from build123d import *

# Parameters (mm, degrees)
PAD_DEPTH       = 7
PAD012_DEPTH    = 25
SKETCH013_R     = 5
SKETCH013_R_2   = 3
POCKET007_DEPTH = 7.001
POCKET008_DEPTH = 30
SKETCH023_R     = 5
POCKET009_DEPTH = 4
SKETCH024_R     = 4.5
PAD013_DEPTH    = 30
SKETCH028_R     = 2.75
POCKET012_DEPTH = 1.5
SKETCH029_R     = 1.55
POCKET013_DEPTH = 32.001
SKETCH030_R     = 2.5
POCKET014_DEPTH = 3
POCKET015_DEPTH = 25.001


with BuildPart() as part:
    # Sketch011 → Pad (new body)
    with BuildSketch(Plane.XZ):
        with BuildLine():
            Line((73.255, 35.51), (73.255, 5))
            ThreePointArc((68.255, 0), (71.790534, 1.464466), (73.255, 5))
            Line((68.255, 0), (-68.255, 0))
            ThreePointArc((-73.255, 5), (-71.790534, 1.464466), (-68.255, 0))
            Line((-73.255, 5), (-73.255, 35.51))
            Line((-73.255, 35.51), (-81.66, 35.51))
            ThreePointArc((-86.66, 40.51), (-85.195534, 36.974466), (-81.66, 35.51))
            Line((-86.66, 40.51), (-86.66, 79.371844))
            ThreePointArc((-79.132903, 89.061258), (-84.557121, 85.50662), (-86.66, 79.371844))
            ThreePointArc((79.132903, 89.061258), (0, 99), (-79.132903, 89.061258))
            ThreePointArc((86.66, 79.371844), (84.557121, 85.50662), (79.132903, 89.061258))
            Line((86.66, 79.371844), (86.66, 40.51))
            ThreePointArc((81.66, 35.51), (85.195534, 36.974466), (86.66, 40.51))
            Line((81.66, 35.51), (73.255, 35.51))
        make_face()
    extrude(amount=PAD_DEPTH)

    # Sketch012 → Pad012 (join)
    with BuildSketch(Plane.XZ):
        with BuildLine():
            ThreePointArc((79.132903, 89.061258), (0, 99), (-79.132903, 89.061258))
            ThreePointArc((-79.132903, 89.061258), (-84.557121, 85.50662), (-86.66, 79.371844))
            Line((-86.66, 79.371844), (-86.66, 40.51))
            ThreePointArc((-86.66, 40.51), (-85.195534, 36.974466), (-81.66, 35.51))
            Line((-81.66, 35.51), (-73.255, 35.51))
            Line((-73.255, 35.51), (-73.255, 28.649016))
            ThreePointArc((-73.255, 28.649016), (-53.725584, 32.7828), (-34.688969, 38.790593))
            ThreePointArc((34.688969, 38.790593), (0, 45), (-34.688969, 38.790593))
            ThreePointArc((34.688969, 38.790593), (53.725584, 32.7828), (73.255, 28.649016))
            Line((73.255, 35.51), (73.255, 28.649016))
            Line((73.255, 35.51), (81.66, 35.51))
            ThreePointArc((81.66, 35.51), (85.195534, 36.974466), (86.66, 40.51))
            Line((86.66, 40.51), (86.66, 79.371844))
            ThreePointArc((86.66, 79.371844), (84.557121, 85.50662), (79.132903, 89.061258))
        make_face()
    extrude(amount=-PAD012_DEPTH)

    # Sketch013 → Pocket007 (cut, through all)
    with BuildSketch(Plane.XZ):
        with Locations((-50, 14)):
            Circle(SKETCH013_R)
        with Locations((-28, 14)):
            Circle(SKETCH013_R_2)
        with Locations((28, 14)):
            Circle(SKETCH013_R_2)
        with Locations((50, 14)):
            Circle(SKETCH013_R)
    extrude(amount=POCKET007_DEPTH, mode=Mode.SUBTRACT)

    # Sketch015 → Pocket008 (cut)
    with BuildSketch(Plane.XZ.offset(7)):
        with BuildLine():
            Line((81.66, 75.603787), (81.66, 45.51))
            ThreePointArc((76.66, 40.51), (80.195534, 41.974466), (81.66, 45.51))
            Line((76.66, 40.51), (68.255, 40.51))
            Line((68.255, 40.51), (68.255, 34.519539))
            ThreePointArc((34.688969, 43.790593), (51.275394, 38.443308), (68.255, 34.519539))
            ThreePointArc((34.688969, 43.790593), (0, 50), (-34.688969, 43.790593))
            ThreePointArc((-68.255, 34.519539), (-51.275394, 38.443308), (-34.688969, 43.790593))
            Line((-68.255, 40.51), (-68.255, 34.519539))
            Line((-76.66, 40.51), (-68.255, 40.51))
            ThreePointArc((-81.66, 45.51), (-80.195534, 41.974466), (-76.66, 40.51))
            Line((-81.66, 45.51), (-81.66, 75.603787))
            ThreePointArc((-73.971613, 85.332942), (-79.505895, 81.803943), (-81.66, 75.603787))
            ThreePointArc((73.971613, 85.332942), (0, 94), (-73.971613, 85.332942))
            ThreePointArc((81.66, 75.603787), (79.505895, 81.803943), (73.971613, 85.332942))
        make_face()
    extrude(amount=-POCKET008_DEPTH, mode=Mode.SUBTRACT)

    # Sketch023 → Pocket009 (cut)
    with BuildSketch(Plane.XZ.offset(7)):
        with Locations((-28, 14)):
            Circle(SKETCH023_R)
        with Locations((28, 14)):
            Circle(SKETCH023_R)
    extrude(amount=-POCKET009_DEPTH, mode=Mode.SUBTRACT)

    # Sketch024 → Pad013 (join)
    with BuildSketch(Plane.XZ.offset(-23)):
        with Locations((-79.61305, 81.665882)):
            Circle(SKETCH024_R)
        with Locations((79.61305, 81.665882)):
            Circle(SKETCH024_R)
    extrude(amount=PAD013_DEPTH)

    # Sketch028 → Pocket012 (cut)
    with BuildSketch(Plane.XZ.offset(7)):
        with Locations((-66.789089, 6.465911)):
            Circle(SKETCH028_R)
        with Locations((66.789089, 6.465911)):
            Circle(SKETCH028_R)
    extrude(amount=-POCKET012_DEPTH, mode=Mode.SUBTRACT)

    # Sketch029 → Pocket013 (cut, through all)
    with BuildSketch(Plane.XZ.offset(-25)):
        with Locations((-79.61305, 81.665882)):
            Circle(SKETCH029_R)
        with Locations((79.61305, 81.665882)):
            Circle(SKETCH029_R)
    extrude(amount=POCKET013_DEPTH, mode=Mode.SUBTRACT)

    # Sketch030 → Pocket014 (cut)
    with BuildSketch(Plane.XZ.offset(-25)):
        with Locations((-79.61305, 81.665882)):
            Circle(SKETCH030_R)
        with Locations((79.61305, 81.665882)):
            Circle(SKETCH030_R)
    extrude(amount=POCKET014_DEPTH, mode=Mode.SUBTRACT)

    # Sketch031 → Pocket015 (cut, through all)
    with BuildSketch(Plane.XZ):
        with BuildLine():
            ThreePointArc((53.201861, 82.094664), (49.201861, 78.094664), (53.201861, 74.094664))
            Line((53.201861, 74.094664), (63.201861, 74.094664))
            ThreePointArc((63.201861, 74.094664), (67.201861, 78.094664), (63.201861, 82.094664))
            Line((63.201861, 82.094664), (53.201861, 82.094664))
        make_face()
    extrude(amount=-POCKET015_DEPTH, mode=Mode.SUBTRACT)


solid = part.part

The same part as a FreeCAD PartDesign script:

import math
import FreeCAD as App
import Part
import Sketcher
from FreeCAD import Vector
Q = App.Units.Quantity

doc = App.newDocument("Part")
body = doc.addObject("PartDesign::Body", "Body")

# Sketch on XZ plane
sketch1 = body.newObject("Sketcher::SketchObject", "Sketch")
sketch1.AttachmentSupport = (doc.getObject("XZ_Plane"), [""])
sketch1.MapMode = "FlatFace"
sketch1.addGeometry([
    Part.LineSegment(Vector(73.255, 5, 0), Vector(73.255, 35.51, 0)),  # 0
    Part.LineSegment(Vector(73.255, 35.51, 0), Vector(81.66, 35.51, 0)),  # 1
    Part.ArcOfCircle(Part.Circle(Vector(81.66, 40.51, 0), Vector(0, 0, 1), 5), math.radians(-90.000004), math.radians(0.000004)),  # 2
    Part.LineSegment(Vector(86.66, 40.51, 0), Vector(86.66, 79.371844, 0)),  # 3
    Part.ArcOfCircle(Part.Circle(Vector(76.66, 79.371844, 0), Vector(0, 0, 1), 10), math.radians(0.000001), math.radians(75.682777)),  # 4
    Part.ArcOfCircle(Part.Circle(Vector(0, -221.000003, 0), Vector(0, 0, 1), 320.000003), math.radians(75.682775), math.radians(104.317225)),  # 5
    Part.ArcOfCircle(Part.Circle(Vector(-76.66, 79.371844, 0), Vector(0, 0, 1), 10), math.radians(104.317223), math.radians(179.999999)),  # 6
    Part.LineSegment(Vector(-86.66, 79.371844, 0), Vector(-86.66, 40.51, 0)),  # 7
    Part.ArcOfCircle(Part.Circle(Vector(-81.66, 40.51, 0), Vector(0, 0, 1), 5), math.radians(179.999996), math.radians(270.000004)),  # 8
    Part.LineSegment(Vector(-81.66, 35.51, 0), Vector(-73.255, 35.51, 0)),  # 9
    Part.LineSegment(Vector(-73.255, 35.51, 0), Vector(-73.255, 5, 0)),  # 10
    Part.ArcOfCircle(Part.Circle(Vector(-68.255, 5, 0), Vector(0, 0, 1), 5), math.radians(179.999996), math.radians(270.000004)),  # 11
    Part.LineSegment(Vector(-68.255, 0, 0), Vector(68.255, 0, 0)),  # 12
    Part.ArcOfCircle(Part.Circle(Vector(68.255, 5, 0), Vector(0, 0, 1), 5), math.radians(-90.000004), math.radians(0.000004)),  # 13
], False)
sketch1.addConstraint([
    Sketcher.Constraint("Coincident", 0, 2, 1, 1),
    Sketcher.Constraint("Tangent", 1, 2, 2, 1),
    Sketcher.Constraint("Tangent", 2, 2, 3, 1),
    Sketcher.Constraint("Tangent", 3, 2, 4, 1),
    Sketcher.Constraint("Tangent", 4, 2, 5, 1),
    Sketcher.Constraint("Tangent", 5, 2, 6, 1),
    Sketcher.Constraint("Tangent", 6, 2, 7, 1),
    Sketcher.Constraint("Tangent", 7, 2, 8, 1),
    Sketcher.Constraint("Tangent", 8, 2, 9, 1),
    Sketcher.Constraint("Coincident", 9, 2, 10, 1),
    Sketcher.Constraint("Tangent", 10, 2, 11, 1),
    Sketcher.Constraint("Tangent", 11, 2, 12, 1),
    Sketcher.Constraint("Tangent", 12, 2, 13, 1),
    Sketcher.Constraint("Tangent", 13, 2, 0, 1),
    Sketcher.Constraint("Vertical", 0),
    Sketcher.Constraint("Horizontal", 1),
    Sketcher.Constraint("Vertical", 3),
    Sketcher.Constraint("Vertical", 7),
    Sketcher.Constraint("Horizontal", 9),
    Sketcher.Constraint("Vertical", 10),
    Sketcher.Constraint("Horizontal", 12),
    Sketcher.Constraint("Equal", 4, 6),
    Sketcher.Constraint("Equal", 2, 8),
    Sketcher.Constraint("Equal", 8, 11),
    Sketcher.Constraint("Equal", 11, 13),
    Sketcher.Constraint("Symmetric", 11, 2, 12, 2, -1, 1),
    Sketcher.Constraint("Symmetric", 4, 3, 6, 3, -2),
    Sketcher.Constraint("Horizontal", 2, 3, 8, 3),
    Sketcher.Constraint("Radius", 2, Q("5 mm")),
    Sketcher.Constraint("Radius", 4, Q("10 mm")),
    Sketcher.Constraint("DistanceX", 12, 1, 12, 2, Q("136.51 mm")),
    Sketcher.Constraint("DistanceY", 0, 1, 0, 2, Q("30.51 mm")),
    Sketcher.Constraint("DistanceX", 1, 1, 1, 2, Q("8.405 mm")),
    Sketcher.Constraint("Radius", 5, Q("320.000003 mm")),
    Sketcher.Constraint("DistanceY", 3, 1, 3, 2, Q("38.861844 mm")),
])
pad1 = body.newObject("PartDesign::Pad", "Pad")
pad1.Profile = sketch1
pad1.Length = 7

# Sketch on XZ plane
sketch2 = body.newObject("Sketcher::SketchObject", "Sketch001")
sketch2.AttachmentSupport = (doc.getObject("XZ_Plane"), [""])
sketch2.MapMode = "FlatFace"
sketch2.addGeometry([
    Part.ArcOfCircle(Part.Circle(Vector(0, -221.000003, 0), Vector(0, 0, 1), 320.000003), math.radians(75.682775), math.radians(104.317225)),  # 0
    Part.ArcOfCircle(Part.Circle(Vector(-76.66, 79.371844, 0), Vector(0, 0, 1), 10), math.radians(104.317223), math.radians(179.999999)),  # 1
    Part.LineSegment(Vector(-86.66, 79.371844, 0), Vector(-86.66, 40.51, 0)),  # 2
    Part.ArcOfCircle(Part.Circle(Vector(-81.66, 40.51, 0), Vector(0, 0, 1), 5), math.radians(179.999996), math.radians(270.000004)),  # 3
    Part.LineSegment(Vector(-81.66, 35.51, 0), Vector(-73.255, 35.51, 0)),  # 4
    Part.LineSegment(Vector(-73.255, 35.51, 0), Vector(-73.255, 28.649016, 0)),  # 5
    Part.ArcOfCircle(Part.Circle(Vector(-106.025749, 231.668024, 0), Vector(0, 0, 1), 205.646881), math.radians(-80.830571), math.radians(-69.702808)),  # 6
    Part.ArcOfCircle(Part.Circle(Vector(0, -54.999992, 0), Vector(0, 0, 1), 99.999992), math.radians(69.702806), math.radians(110.297194)),  # 7
    Part.ArcOfCircle(Part.Circle(Vector(106.025749, 231.668024, 0), Vector(0, 0, 1), 205.646881), math.radians(-110.297192), math.radians(-99.169429)),  # 8
    Part.LineSegment(Vector(73.255, 28.649016, 0), Vector(73.255, 35.51, 0)),  # 9
    Part.LineSegment(Vector(73.255, 35.51, 0), Vector(81.66, 35.51, 0)),  # 10
    Part.ArcOfCircle(Part.Circle(Vector(81.66, 40.51, 0), Vector(0, 0, 1), 5), math.radians(-90.000004), math.radians(0.000004)),  # 11
    Part.LineSegment(Vector(86.66, 40.51, 0), Vector(86.66, 79.371844, 0)),  # 12
    Part.ArcOfCircle(Part.Circle(Vector(76.66, 79.371844, 0), Vector(0, 0, 1), 10), math.radians(0.000001), math.radians(75.682777)),  # 13
], False)
sketch2.addConstraint([
    Sketcher.Constraint("Tangent", 0, 2, 1, 1),
    Sketcher.Constraint("Tangent", 1, 2, 2, 1),
    Sketcher.Constraint("Tangent", 2, 2, 3, 1),
    Sketcher.Constraint("Tangent", 3, 2, 4, 1),
    Sketcher.Constraint("Coincident", 4, 2, 5, 1),
    Sketcher.Constraint("Coincident", 5, 2, 6, 1),
    Sketcher.Constraint("Tangent", 6, 2, 7, 2),
    Sketcher.Constraint("Tangent", 7, 1, 8, 1),
    Sketcher.Constraint("Coincident", 8, 2, 9, 1),
    Sketcher.Constraint("Coincident", 9, 2, 10, 1),
    Sketcher.Constraint("Tangent", 10, 2, 11, 1),
    Sketcher.Constraint("Tangent", 11, 2, 12, 1),
    Sketcher.Constraint("Tangent", 12, 2, 13, 1),
    Sketcher.Constraint("Tangent", 13, 2, 0, 1),
    Sketcher.Constraint("Vertical", 2),
    Sketcher.Constraint("Horizontal", 4),
    Sketcher.Constraint("Vertical", 5),
    Sketcher.Constraint("Vertical", 9),
    Sketcher.Constraint("Horizontal", 10),
    Sketcher.Constraint("Vertical", 12),
    Sketcher.Constraint("Equal", 6, 8),
    Sketcher.Constraint("Equal", 3, 11),
    Sketcher.Constraint("Equal", 1, 13),
    Sketcher.Constraint("Symmetric", 6, 3, 8, 3, -2),
    Sketcher.Constraint("Symmetric", 3, 3, 11, 3, -2),
    Sketcher.Constraint("PointOnObject", 0, 3, -2),
    Sketcher.Constraint("Horizontal", 5, 2, 8, 2),
    Sketcher.Constraint("Radius", 1, Q("10 mm")),
    Sketcher.Constraint("Radius", 3, Q("5 mm")),
    Sketcher.Constraint("DistanceX", 4, 1, 4, 2, Q("8.405 mm")),
    Sketcher.Constraint("DistanceX", 1, 3, -1, 1, Q("76.66 mm")),
    Sketcher.Constraint("DistanceY", -1, 1, 3, 3, Q("40.51 mm")),
    Sketcher.Constraint("Radius", 6, Q("205.646881 mm")),
    Sketcher.Constraint("Radius", 0, Q("320.000003 mm")),
    Sketcher.Constraint("Radius", 7, Q("99.999992 mm")),
    Sketcher.Constraint("DistanceX", 6, 3, 8, 3, Q("212.051499 mm")),
    Sketcher.Constraint("DistanceY", 2, 2, 2, 1, Q("38.861844 mm")),
    Sketcher.Constraint("DistanceY", 5, 2, 5, 1, Q("6.860984 mm")),
])
pad2 = body.newObject("PartDesign::Pad", "Pad001")
pad2.Profile = sketch2
pad2.Length = 25
pad2.Reversed = True

# Sketch on XZ plane
sketch3 = body.newObject("Sketcher::SketchObject", "Sketch002")
sketch3.AttachmentSupport = (doc.getObject("XZ_Plane"), [""])
sketch3.MapMode = "FlatFace"
sketch3.addGeometry([
    Part.Circle(Vector(-50, 14, 0), Vector(0, 0, 1), 5),
    Part.Circle(Vector(-28, 14, 0), Vector(0, 0, 1), 3),
    Part.Circle(Vector(28, 14, 0), Vector(0, 0, 1), 3),
    Part.Circle(Vector(50, 14, 0), Vector(0, 0, 1), 5),
], False)
sketch3.addConstraint([
    Sketcher.Constraint("Equal", 1, 2),
    Sketcher.Constraint("Equal", 0, 3),
    Sketcher.Constraint("Symmetric", 1, 3, 2, 3, -2),
    Sketcher.Constraint("Symmetric", 0, 3, 3, 3, -2),
    Sketcher.Constraint("Horizontal", 0, 3, 1, 3),
    Sketcher.Constraint("Diameter", 0, Q("10 mm")),
    Sketcher.Constraint("Diameter", 1, Q("6 mm")),
    Sketcher.Constraint("DistanceX", 0, 3, -1, 1, Q("50 mm")),
    Sketcher.Constraint("DistanceY", -1, 1, 0, 3, Q("14 mm")),
    Sketcher.Constraint("DistanceX", 1, 3, -1, 1, Q("28 mm")),
])
pocket1 = body.newObject("PartDesign::Pocket", "Pocket")
pocket1.Profile = sketch3
pocket1.Type = "ThroughAll"
pocket1.Reversed = True

# Sketch on XZ plane
sketch4 = body.newObject("Sketcher::SketchObject", "Sketch003")
sketch4.AttachmentSupport = (doc.getObject("XZ_Plane"), [""])
sketch4.MapMode = "FlatFace"
sketch4.AttachmentOffset = App.Placement(Vector(0, 0, 7), App.Rotation())
sketch4.addGeometry([
    Part.LineSegment(Vector(81.66, 45.51, 0), Vector(81.66, 75.603787, 0)),  # 0
    Part.ArcOfCircle(Part.Circle(Vector(71.659999, 75.603787, 0), Vector(0, 0, 1), 10.000001), math.radians(0), math.radians(76.634544)),  # 1
    Part.ArcOfCircle(Part.Circle(Vector(0, -226.000018, 0), Vector(0, 0, 1), 320.000018), math.radians(76.634549), math.radians(103.365451)),  # 2
    Part.ArcOfCircle(Part.Circle(Vector(-71.659999, 75.603787, 0), Vector(0, 0, 1), 10.000001), math.radians(103.365456), math.radians(180)),  # 3
    Part.LineSegment(Vector(-81.66, 75.603787, 0), Vector(-81.66, 45.51, 0)),  # 4
    Part.ArcOfCircle(Part.Circle(Vector(-76.66, 45.51, 0), Vector(0, 0, 1), 5), math.radians(179.999996), math.radians(270.000004)),  # 5
    Part.LineSegment(Vector(-76.66, 40.51, 0), Vector(-68.255, 40.51, 0)),  # 6
    Part.LineSegment(Vector(-68.255, 40.51, 0), Vector(-68.255, 34.519539, 0)),  # 7
    Part.ArcOfCircle(Part.Circle(Vector(-106.025768, 236.668098, 0), Vector(0, 0, 1), 205.646957), math.radians(-79.416515), math.radians(-69.702811)),  # 8
    Part.ArcOfCircle(Part.Circle(Vector(0, -49.999992, 0), Vector(0, 0, 1), 99.999992), math.radians(69.702806), math.radians(110.297194)),  # 9
    Part.ArcOfCircle(Part.Circle(Vector(106.025768, 236.668098, 0), Vector(0, 0, 1), 205.646957), math.radians(-110.297189), math.radians(-100.583485)),  # 10
    Part.LineSegment(Vector(68.255, 34.519539, 0), Vector(68.255, 40.51, 0)),  # 11
    Part.LineSegment(Vector(68.255, 40.51, 0), Vector(76.66, 40.51, 0)),  # 12
    Part.ArcOfCircle(Part.Circle(Vector(76.66, 45.51, 0), Vector(0, 0, 1), 5), math.radians(-90.000004), math.radians(0.000004)),  # 13
], False)
sketch4.addConstraint([
    Sketcher.Constraint("Tangent", 0, 2, 1, 1),
    Sketcher.Constraint("Tangent", 1, 2, 2, 1),
    Sketcher.Constraint("Tangent", 2, 2, 3, 1),
    Sketcher.Constraint("Tangent", 3, 2, 4, 1),
    Sketcher.Constraint("Tangent", 4, 2, 5, 1),
    Sketcher.Constraint("Tangent", 5, 2, 6, 1),
    Sketcher.Constraint("Coincident", 6, 2, 7, 1),
    Sketcher.Constraint("Coincident", 7, 2, 8, 1),
    Sketcher.Constraint("Tangent", 8, 2, 9, 2),
    Sketcher.Constraint("Tangent", 9, 1, 10, 1),
    Sketcher.Constraint("Coincident", 10, 2, 11, 1),
    Sketcher.Constraint("Coincident", 11, 2, 12, 1),
    Sketcher.Constraint("Tangent", 12, 2, 13, 1),
    Sketcher.Constraint("Tangent", 13, 2, 0, 1),
    Sketcher.Constraint("Vertical", 0),
    Sketcher.Constraint("Vertical", 4),
    Sketcher.Constraint("Horizontal", 6),
    Sketcher.Constraint("Vertical", 7),
    Sketcher.Constraint("Vertical", 11),
    Sketcher.Constraint("Horizontal", 12),
    Sketcher.Constraint("Equal", 1, 3),
    Sketcher.Constraint("Equal", 8, 10),
    Sketcher.Constraint("Equal", 5, 13),
    Sketcher.Constraint("Symmetric", 1, 3, 3, 3, -2),
    Sketcher.Constraint("Symmetric", 8, 3, 10, 3, -2),
    Sketcher.Constraint("Symmetric", 6, 2, 11, 2, -2),
    Sketcher.Constraint("Radius", 1, Q("10.000001 mm")),
    Sketcher.Constraint("Radius", 5, Q("5 mm")),
    Sketcher.Constraint("DistanceX", 6, 1, 6, 2, Q("8.405 mm")),
    Sketcher.Constraint("DistanceX", -1, 1, 1, 3, Q("71.659999 mm")),
    Sketcher.Constraint("DistanceY", -1, 1, 5, 3, Q("45.51 mm")),
    Sketcher.Constraint("Radius", 2, Q("320.000018 mm")),
    Sketcher.Constraint("Radius", 8, Q("205.646957 mm")),
    Sketcher.Constraint("Radius", 9, Q("99.999992 mm")),
    Sketcher.Constraint("DistanceY", 7, 2, 7, 1, Q("5.990461 mm")),
    Sketcher.Constraint("DistanceY", -1, 1, 8, 3, Q("236.668098 mm")),
    Sketcher.Constraint("DistanceY", 0, 1, 0, 2, Q("30.093787 mm")),
])
pocket2 = body.newObject("PartDesign::Pocket", "Pocket001")
pocket2.Profile = sketch4
pocket2.Length = 30

# Sketch on XZ plane
sketch5 = body.newObject("Sketcher::SketchObject", "Sketch004")
sketch5.AttachmentSupport = (doc.getObject("XZ_Plane"), [""])
sketch5.MapMode = "FlatFace"
sketch5.AttachmentOffset = App.Placement(Vector(0, 0, 7), App.Rotation())
sketch5.addGeometry([
    Part.Circle(Vector(-28, 14, 0), Vector(0, 0, 1), 5),
    Part.Circle(Vector(28, 14, 0), Vector(0, 0, 1), 5),
], False)
sketch5.addConstraint([
    Sketcher.Constraint("Equal", 0, 1),
    Sketcher.Constraint("Symmetric", 0, 3, 1, 3, -2),
    Sketcher.Constraint("Diameter", 0, Q("10 mm")),
    Sketcher.Constraint("DistanceX", 0, 3, -1, 1, Q("28 mm")),
    Sketcher.Constraint("DistanceY", -1, 1, 0, 3, Q("14 mm")),
])
pocket3 = body.newObject("PartDesign::Pocket", "Pocket002")
pocket3.Profile = sketch5
pocket3.Length = 4

# Sketch on XZ plane
sketch6 = body.newObject("Sketcher::SketchObject", "Sketch005")
sketch6.AttachmentSupport = (doc.getObject("XZ_Plane"), [""])
sketch6.MapMode = "FlatFace"
sketch6.AttachmentOffset = App.Placement(Vector(0, 0, -23), App.Rotation())
sketch6.addGeometry([
    Part.Circle(Vector(-79.61305, 81.665882, 0), Vector(0, 0, 1), 4.5),
    Part.Circle(Vector(79.61305, 81.665882, 0), Vector(0, 0, 1), 4.5),
], False)
sketch6.addConstraint([
    Sketcher.Constraint("Equal", 0, 1),
    Sketcher.Constraint("Symmetric", 0, 3, 1, 3, -2),
    Sketcher.Constraint("Diameter", 0, Q("9 mm")),
    Sketcher.Constraint("DistanceX", 0, 3, 1, 3, Q("159.2261 mm")),
    Sketcher.Constraint("DistanceY", -1, 1, 0, 3, Q("81.665882 mm")),
])
pad3 = body.newObject("PartDesign::Pad", "Pad002")
pad3.Profile = sketch6
pad3.Length = 30

# Sketch on XZ plane
sketch7 = body.newObject("Sketcher::SketchObject", "Sketch006")
sketch7.AttachmentSupport = (doc.getObject("XZ_Plane"), [""])
sketch7.MapMode = "FlatFace"
sketch7.AttachmentOffset = App.Placement(Vector(0, 0, 7), App.Rotation())
sketch7.addGeometry([
    Part.Circle(Vector(-66.789089, 6.465911, 0), Vector(0, 0, 1), 2.75),
    Part.Circle(Vector(66.789089, 6.465911, 0), Vector(0, 0, 1), 2.75),
], False)
sketch7.addConstraint([
    Sketcher.Constraint("Equal", 0, 1),
    Sketcher.Constraint("Symmetric", 0, 3, 1, 3, -2),
    Sketcher.Constraint("Diameter", 0, Q("5.5 mm")),
    Sketcher.Constraint("DistanceX", 0, 3, -1, 1, Q("66.789089 mm")),
    Sketcher.Constraint("DistanceY", -1, 1, 0, 3, Q("6.465911 mm")),
])
pocket4 = body.newObject("PartDesign::Pocket", "Pocket003")
pocket4.Profile = sketch7
pocket4.Length = 1.5

# Sketch on XZ plane
sketch8 = body.newObject("Sketcher::SketchObject", "Sketch007")
sketch8.AttachmentSupport = (doc.getObject("XZ_Plane"), [""])
sketch8.MapMode = "FlatFace"
sketch8.AttachmentOffset = App.Placement(Vector(0, 0, -25), App.Rotation())
sketch8.addGeometry([
    Part.Circle(Vector(-79.61305, 81.665882, 0), Vector(0, 0, 1), 1.55),
    Part.Circle(Vector(79.61305, 81.665882, 0), Vector(0, 0, 1), 1.55),
], False)
sketch8.addConstraint([
    Sketcher.Constraint("Equal", 0, 1),
    Sketcher.Constraint("Symmetric", 0, 3, 1, 3, -2),
    Sketcher.Constraint("Diameter", 0, Q("3.1 mm")),
    Sketcher.Constraint("DistanceX", 0, 3, 1, 3, Q("159.2261 mm")),
    Sketcher.Constraint("DistanceY", -1, 1, 0, 3, Q("81.665882 mm")),
])
pocket5 = body.newObject("PartDesign::Pocket", "Pocket004")
pocket5.Profile = sketch8
pocket5.Type = "ThroughAll"
pocket5.Reversed = True

# Sketch on XZ plane
sketch9 = body.newObject("Sketcher::SketchObject", "Sketch008")
sketch9.AttachmentSupport = (doc.getObject("XZ_Plane"), [""])
sketch9.MapMode = "FlatFace"
sketch9.AttachmentOffset = App.Placement(Vector(0, 0, -25), App.Rotation())
sketch9.addGeometry([
    Part.Circle(Vector(-79.61305, 81.665882, 0), Vector(0, 0, 1), 2.5),
    Part.Circle(Vector(79.61305, 81.665882, 0), Vector(0, 0, 1), 2.5),
], False)
sketch9.addConstraint([
    Sketcher.Constraint("Equal", 0, 1),
    Sketcher.Constraint("Symmetric", 0, 3, 1, 3, -2),
    Sketcher.Constraint("Diameter", 0, Q("5 mm")),
    Sketcher.Constraint("DistanceX", 0, 3, 1, 3, Q("159.2261 mm")),
    Sketcher.Constraint("DistanceY", -1, 1, 0, 3, Q("81.665882 mm")),
])
pocket6 = body.newObject("PartDesign::Pocket", "Pocket005")
pocket6.Profile = sketch9
pocket6.Length = 3
pocket6.Reversed = True

# Sketch on XZ plane
sketch10 = body.newObject("Sketcher::SketchObject", "Sketch009")
sketch10.AttachmentSupport = (doc.getObject("XZ_Plane"), [""])
sketch10.MapMode = "FlatFace"
sketch10.addGeometry([
    Part.ArcOfCircle(Part.Circle(Vector(53.201861, 78.094664, 0), Vector(0, 0, 1), 4), math.radians(90), math.radians(270)),
    Part.LineSegment(Vector(53.201861, 74.094664, 0), Vector(63.201861, 74.094664, 0)),
    Part.ArcOfCircle(Part.Circle(Vector(63.201861, 78.094664, 0), Vector(0, 0, 1), 4), math.radians(-90), math.radians(90)),
    Part.LineSegment(Vector(63.201861, 82.094664, 0), Vector(53.201861, 82.094664, 0)),
], False)
sketch10.addConstraint([
    Sketcher.Constraint("Tangent", 0, 2, 1, 1),
    Sketcher.Constraint("Tangent", 1, 2, 2, 1),
    Sketcher.Constraint("Tangent", 2, 2, 3, 1),
    Sketcher.Constraint("Tangent", 3, 2, 0, 1),
    Sketcher.Constraint("Horizontal", 1),
    Sketcher.Constraint("Horizontal", 3),
    Sketcher.Constraint("Radius", 0, Q("4 mm")),
    Sketcher.Constraint("DistanceX", 1, 1, 1, 2, Q("10 mm")),
    Sketcher.Constraint("DistanceX", -1, 1, 0, 3, Q("53.201861 mm")),
    Sketcher.Constraint("DistanceY", -1, 1, 0, 3, Q("78.094664 mm")),
])
pocket7 = body.newObject("PartDesign::Pocket", "Pocket006")
pocket7.Profile = sketch10
pocket7.Type = "ThroughAll"

doc.recompute()
